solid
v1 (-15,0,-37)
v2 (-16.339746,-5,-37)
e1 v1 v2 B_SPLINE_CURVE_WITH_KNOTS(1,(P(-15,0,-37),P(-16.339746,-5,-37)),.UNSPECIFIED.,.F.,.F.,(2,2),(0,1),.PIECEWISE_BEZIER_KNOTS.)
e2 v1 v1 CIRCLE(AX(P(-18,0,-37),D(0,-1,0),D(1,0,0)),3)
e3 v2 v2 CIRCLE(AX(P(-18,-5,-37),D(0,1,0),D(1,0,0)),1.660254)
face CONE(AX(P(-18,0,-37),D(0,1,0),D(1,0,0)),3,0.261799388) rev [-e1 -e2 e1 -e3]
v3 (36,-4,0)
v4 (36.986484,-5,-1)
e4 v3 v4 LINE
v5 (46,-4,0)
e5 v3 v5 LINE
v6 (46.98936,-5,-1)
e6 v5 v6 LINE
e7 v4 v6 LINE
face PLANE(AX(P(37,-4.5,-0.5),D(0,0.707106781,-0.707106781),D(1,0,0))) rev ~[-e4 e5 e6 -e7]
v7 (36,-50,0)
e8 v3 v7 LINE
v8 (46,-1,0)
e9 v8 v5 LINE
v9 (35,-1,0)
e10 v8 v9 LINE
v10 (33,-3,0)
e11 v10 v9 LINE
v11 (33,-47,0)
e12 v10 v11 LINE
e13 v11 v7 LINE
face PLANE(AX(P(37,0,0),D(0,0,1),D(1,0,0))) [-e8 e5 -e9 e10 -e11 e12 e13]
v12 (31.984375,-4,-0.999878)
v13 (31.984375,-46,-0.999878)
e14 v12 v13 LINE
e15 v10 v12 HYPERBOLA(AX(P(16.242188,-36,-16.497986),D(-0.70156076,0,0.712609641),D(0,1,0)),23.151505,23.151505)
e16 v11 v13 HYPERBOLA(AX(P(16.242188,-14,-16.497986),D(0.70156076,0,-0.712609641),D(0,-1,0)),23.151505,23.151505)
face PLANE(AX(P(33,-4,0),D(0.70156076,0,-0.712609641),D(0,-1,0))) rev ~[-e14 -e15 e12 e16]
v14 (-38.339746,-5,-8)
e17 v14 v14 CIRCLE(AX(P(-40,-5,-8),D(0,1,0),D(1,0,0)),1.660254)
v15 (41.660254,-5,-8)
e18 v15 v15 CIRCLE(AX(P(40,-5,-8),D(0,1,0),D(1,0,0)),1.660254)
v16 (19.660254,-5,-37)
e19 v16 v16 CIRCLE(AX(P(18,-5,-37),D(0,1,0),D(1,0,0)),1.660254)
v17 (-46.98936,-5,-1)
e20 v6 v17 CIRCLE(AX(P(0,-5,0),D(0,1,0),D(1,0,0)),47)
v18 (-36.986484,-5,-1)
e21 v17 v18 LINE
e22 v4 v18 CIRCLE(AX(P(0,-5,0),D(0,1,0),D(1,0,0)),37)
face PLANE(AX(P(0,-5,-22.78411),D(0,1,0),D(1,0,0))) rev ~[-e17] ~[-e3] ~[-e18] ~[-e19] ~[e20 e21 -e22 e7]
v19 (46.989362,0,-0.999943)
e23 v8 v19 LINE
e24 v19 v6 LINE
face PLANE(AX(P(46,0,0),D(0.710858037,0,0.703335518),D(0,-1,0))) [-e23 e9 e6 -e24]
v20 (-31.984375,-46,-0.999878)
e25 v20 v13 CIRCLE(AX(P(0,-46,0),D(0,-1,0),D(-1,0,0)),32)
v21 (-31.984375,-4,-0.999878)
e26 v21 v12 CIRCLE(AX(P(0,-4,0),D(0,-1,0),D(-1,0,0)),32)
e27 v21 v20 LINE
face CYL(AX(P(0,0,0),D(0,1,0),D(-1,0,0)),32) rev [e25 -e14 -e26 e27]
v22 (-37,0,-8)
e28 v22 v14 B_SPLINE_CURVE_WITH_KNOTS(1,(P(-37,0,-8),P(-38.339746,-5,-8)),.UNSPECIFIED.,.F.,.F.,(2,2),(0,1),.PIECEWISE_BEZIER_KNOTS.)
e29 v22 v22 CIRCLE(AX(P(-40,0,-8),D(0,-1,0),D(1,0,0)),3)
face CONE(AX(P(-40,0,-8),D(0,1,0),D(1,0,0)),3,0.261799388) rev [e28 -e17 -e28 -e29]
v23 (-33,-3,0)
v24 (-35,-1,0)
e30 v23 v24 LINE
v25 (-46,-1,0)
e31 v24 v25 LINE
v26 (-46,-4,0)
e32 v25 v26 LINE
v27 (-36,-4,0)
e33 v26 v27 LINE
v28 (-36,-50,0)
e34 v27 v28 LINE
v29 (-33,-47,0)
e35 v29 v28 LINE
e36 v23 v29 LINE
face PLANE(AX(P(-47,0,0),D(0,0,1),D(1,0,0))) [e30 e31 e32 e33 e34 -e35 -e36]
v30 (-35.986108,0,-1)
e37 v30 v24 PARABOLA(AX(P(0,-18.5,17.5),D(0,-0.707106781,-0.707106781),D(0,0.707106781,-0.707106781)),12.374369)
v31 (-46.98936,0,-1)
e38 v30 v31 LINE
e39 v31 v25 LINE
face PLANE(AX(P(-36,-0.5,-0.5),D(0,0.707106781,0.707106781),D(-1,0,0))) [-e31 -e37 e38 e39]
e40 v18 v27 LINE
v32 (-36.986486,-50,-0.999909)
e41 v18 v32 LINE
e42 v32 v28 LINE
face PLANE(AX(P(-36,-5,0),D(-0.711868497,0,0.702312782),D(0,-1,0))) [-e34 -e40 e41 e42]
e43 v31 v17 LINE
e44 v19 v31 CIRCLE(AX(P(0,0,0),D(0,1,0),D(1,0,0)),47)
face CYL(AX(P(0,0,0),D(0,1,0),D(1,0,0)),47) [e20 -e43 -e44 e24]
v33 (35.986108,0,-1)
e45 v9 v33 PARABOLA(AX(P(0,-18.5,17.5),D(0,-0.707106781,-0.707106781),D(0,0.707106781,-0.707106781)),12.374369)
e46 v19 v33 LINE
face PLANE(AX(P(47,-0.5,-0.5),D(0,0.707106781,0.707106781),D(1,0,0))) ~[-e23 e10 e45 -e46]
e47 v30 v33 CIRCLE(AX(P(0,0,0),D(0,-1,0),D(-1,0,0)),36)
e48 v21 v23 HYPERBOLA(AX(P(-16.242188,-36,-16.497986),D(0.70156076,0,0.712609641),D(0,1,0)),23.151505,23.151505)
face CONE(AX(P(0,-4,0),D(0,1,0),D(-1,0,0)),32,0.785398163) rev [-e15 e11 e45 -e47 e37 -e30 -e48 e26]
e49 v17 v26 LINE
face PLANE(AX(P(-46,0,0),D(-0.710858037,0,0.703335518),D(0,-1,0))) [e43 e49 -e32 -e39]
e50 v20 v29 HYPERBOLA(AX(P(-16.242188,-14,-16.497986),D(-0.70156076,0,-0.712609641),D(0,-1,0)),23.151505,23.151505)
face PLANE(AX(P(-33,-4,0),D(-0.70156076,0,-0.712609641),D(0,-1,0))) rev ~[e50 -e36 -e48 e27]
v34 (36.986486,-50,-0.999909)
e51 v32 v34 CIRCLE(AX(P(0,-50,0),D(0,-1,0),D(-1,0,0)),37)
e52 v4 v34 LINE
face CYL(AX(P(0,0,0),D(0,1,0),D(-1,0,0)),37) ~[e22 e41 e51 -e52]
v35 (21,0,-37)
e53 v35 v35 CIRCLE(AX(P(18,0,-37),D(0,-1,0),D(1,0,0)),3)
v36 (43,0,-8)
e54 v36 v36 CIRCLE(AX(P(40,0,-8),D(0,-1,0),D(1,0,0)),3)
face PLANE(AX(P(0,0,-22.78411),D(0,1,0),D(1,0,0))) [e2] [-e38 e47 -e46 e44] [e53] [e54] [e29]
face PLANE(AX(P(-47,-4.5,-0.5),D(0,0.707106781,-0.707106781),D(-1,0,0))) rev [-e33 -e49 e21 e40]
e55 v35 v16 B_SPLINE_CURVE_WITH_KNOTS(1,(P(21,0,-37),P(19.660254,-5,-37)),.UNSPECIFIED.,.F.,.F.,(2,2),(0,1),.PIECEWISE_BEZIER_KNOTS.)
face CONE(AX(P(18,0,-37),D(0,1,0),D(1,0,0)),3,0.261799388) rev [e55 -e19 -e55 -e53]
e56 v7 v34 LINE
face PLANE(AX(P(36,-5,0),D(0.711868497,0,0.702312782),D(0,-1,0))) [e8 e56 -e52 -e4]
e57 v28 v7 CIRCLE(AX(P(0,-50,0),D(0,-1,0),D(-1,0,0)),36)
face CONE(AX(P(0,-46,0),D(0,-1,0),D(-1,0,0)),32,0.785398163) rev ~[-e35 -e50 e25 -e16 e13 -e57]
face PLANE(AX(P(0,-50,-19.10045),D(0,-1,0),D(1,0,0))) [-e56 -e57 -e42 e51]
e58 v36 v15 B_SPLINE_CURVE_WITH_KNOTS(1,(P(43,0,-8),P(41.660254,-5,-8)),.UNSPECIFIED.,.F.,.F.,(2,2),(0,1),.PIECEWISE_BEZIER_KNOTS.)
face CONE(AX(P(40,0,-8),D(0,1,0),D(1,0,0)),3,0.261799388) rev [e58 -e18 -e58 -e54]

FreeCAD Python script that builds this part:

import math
import FreeCAD as App
import Part
import Sketcher
from FreeCAD import Vector
Q = App.Units.Quantity


def edges_at(feature, points):
    """Names of the edges that pass closest to the given points."""
    edges = feature.Shape.Edges
    near = lambda p: min(range(len(edges)), key=lambda i: edges[i].distToShape(Part.Vertex(*p))[0])
    return sorted({f"Edge{near(p) + 1}" for p in points})

doc = App.newDocument("Part")
params = doc.addObject("Spreadsheet::Sheet", "Params")
for row, (alias, value) in enumerate([
    ("sketch1_radius", "37 mm"),
    ("sketch1_radius2", "32 mm"),
    ("pad1_length", "50 mm"),
    ("sketch2_radius", "47 mm"),
    ("sketch2_radius2", "37 mm"),
    ("pad2_length", "5 mm"),
    ("sketch3_diameter", "6 mm"),
    ("pocket1_length", "5 mm"),
    ("pocket1_taper", "-15 deg"),
    ("chamfer_size", "4 mm"),
    ("chamfer2_size", "4 mm"),
    ("chamfer3_size", "1 mm"),
], start=1):
    params.set(f"A{row}", alias)
    params.set(f"B{row}", "=" + value)
    params.setAlias(f"B{row}", alias)

body = doc.addObject("PartDesign::Body", "Body")

sketch1 = body.newObject("Sketcher::SketchObject", "Sketch")
sketch1.AttachmentSupport = (doc.getObject("XZ_Plane"), [""])
sketch1.MapMode = "FlatFace"
sketch1.addGeometry(Part.ArcOfCircle(Part.Circle(Vector(0, 0, 0), Vector(0, 0, 1), 37), math.radians(180), math.radians(360)), False)
sketch1.addGeometry(Part.LineSegment(Vector(37, 0, 0), Vector(32, 0, 0)), False)
sketch1.addGeometry(Part.ArcOfCircle(Part.Circle(Vector(0, 0, 0), Vector(0, 0, 1), 32), math.radians(180), math.radians(360)), False)
sketch1.addGeometry(Part.LineSegment(Vector(-32, 0, 0), Vector(-37, 0, 0)), False)
sketch1.addConstraint(Sketcher.Constraint("Coincident", 0, 2, 1, 1))
sketch1.addConstraint(Sketcher.Constraint("Coincident", 1, 2, 2, 2))
sketch1.addConstraint(Sketcher.Constraint("Coincident", 2, 1, 3, 1))
sketch1.addConstraint(Sketcher.Constraint("Coincident", 3, 2, 0, 1))
sketch1.addConstraint(Sketcher.Constraint("Horizontal", 1))
sketch1.addConstraint(Sketcher.Constraint("Horizontal", 3))
sketch1.addConstraint(Sketcher.Constraint("Coincident", 0, 3, -1, 1))
sketch1.addConstraint(Sketcher.Constraint("Coincident", 2, 3, -1, 1))
sketch1.addConstraint(Sketcher.Constraint("PointOnObject", 0, 2, -1))
sketch1.addConstraint(Sketcher.Constraint("PointOnObject", 2, 1, -1))
sketch1.addConstraint(Sketcher.Constraint("Radius", 0, Q("37 mm")))
sketch1.addConstraint(Sketcher.Constraint("Radius", 2, Q("32 mm")))
sketch1.setExpression("Constraints[10]", "Params.sketch1_radius")
sketch1.setExpression("Constraints[11]", "Params.sketch1_radius2")
pad1 = body.newObject("PartDesign::Pad", "Pad")
pad1.Profile = sketch1
pad1.setExpression("Length", "Params.pad1_length")

sketch2 = body.newObject("Sketcher::SketchObject", "Sketch001")
sketch2.AttachmentSupport = (doc.getObject("XZ_Plane"), [""])
sketch2.MapMode = "FlatFace"
sketch2.addGeometry(Part.ArcOfCircle(Part.Circle(Vector(0, 0, 0), Vector(0, 0, 1), 47), math.radians(180), math.radians(360)), False)
sketch2.addGeometry(Part.LineSegment(Vector(-47, 0, 0), Vector(-37, 0, 0)), False)
sketch2.addGeometry(Part.ArcOfCircle(Part.Circle(Vector(0, 0, 0), Vector(0, 0, 1), 37), math.radians(180), math.radians(360)), False)
sketch2.addGeometry(Part.LineSegment(Vector(37, 0, 0), Vector(47, 0, 0)), False)
sketch2.addConstraint(Sketcher.Constraint("Coincident", 0, 1, 1, 1))
sketch2.addConstraint(Sketcher.Constraint("Coincident", 1, 2, 2, 1))
sketch2.addConstraint(Sketcher.Constraint("Coincident", 2, 2, 3, 1))
sketch2.addConstraint(Sketcher.Constraint("Coincident", 3, 2, 0, 2))
sketch2.addConstraint(Sketcher.Constraint("Horizontal", 1))
sketch2.addConstraint(Sketcher.Constraint("Horizontal", 3))
sketch2.addConstraint(Sketcher.Constraint("Coincident", 0, 3, -1, 1))
sketch2.addConstraint(Sketcher.Constraint("Coincident", 2, 3, -1, 1))
sketch2.addConstraint(Sketcher.Constraint("PointOnObject", 0, 1, -1))
sketch2.addConstraint(Sketcher.Constraint("PointOnObject", 2, 2, -1))
sketch2.addConstraint(Sketcher.Constraint("Radius", 0, Q("47 mm")))
sketch2.addConstraint(Sketcher.Constraint("Radius", 2, Q("37 mm")))
sketch2.setExpression("Constraints[10]", "Params.sketch2_radius")
sketch2.setExpression("Constraints[11]", "Params.sketch2_radius2")
pad2 = body.newObject("PartDesign::Pad", "Pad001")
pad2.Profile = sketch2
pad2.setExpression("Length", "Params.pad2_length")

sketch3 = body.newObject("Sketcher::SketchObject", "Sketch002")
sketch3.AttachmentSupport = (doc.getObject("XZ_Plane"), [""])
sketch3.MapMode = "FlatFace"
sketch3.addGeometry(Part.Circle(Vector(-40, -8, 0), Vector(0, 0, 1), 3), False)
sketch3.addGeometry(Part.Circle(Vector(-18, -37, 0), Vector(0, 0, 1), 3), False)
sketch3.addGeometry(Part.Circle(Vector(18, -37, 0), Vector(0, 0, 1), 3), False)
sketch3.addGeometry(Part.Circle(Vector(40, -8, 0), Vector(0, 0, 1), 3), False)
sketch3.addConstraint(Sketcher.Constraint("Equal", 0, 1))
sketch3.addConstraint(Sketcher.Constraint("Equal", 1, 2))
sketch3.addConstraint(Sketcher.Constraint("Equal", 2, 3))
sketch3.addConstraint(Sketcher.Constraint("Symmetric", 1, 3, 2, 3, -2))
sketch3.addConstraint(Sketcher.Constraint("Symmetric", 0, 3, 3, 3, -2))
sketch3.addConstraint(Sketcher.Constraint("Diameter", 0, Q("6 mm")))
sketch3.addConstraint(Sketcher.Constraint("DistanceX", 0, 3, -1, 1, Q("40 mm")))
sketch3.addConstraint(Sketcher.Constraint("DistanceY", 0, 3, -1, 1, Q("8 mm")))
sketch3.addConstraint(Sketcher.Constraint("DistanceX", 1, 3, -1, 1, Q("18 mm")))
sketch3.addConstraint(Sketcher.Constraint("DistanceY", 1, 3, -1, 1, Q("37 mm")))
sketch3.setExpression("Constraints[5]", "Params.sketch3_diameter")
pocket1 = body.newObject("PartDesign::Pocket", "Pocket")
pocket1.Profile = sketch3
pocket1.setExpression("Length", "Params.pocket1_length")
pocket1.Reversed = True
pocket1.setExpression("TaperAngle", "Params.pocket1_taper")
doc.recompute()

chamfer = body.newObject("PartDesign::Chamfer", "Chamfer")
chamfer.Base = (pocket1, edges_at(pocket1, [(0, -50, -32)]))
chamfer.setExpression("Size", "Params.chamfer_size")
doc.recompute()

chamfer2 = body.newObject("PartDesign::Chamfer", "Chamfer001")
chamfer2.Base = (chamfer, edges_at(chamfer, [(0, 0, -32)]))
chamfer2.setExpression("Size", "Params.chamfer2_size")
doc.recompute()

chamfer3 = body.newObject("PartDesign::Chamfer", "Chamfer002")
chamfer3.Base = (chamfer2, edges_at(chamfer2, [
    (-42, -5, 0),
    (-41.5, 0, 0),
    (-47, -2.5, 0),
    (-37, -27.5, 0),
    (-32, -25, 0),
    (42, -5, 0),
    (47, -2.5, 0),
    (41.5, 0, 0),
    (37, -27.5, 0),
    (32, -25, 0),
]))
chamfer3.setExpression("Size", "Params.chamfer3_size")

doc.recompute()
